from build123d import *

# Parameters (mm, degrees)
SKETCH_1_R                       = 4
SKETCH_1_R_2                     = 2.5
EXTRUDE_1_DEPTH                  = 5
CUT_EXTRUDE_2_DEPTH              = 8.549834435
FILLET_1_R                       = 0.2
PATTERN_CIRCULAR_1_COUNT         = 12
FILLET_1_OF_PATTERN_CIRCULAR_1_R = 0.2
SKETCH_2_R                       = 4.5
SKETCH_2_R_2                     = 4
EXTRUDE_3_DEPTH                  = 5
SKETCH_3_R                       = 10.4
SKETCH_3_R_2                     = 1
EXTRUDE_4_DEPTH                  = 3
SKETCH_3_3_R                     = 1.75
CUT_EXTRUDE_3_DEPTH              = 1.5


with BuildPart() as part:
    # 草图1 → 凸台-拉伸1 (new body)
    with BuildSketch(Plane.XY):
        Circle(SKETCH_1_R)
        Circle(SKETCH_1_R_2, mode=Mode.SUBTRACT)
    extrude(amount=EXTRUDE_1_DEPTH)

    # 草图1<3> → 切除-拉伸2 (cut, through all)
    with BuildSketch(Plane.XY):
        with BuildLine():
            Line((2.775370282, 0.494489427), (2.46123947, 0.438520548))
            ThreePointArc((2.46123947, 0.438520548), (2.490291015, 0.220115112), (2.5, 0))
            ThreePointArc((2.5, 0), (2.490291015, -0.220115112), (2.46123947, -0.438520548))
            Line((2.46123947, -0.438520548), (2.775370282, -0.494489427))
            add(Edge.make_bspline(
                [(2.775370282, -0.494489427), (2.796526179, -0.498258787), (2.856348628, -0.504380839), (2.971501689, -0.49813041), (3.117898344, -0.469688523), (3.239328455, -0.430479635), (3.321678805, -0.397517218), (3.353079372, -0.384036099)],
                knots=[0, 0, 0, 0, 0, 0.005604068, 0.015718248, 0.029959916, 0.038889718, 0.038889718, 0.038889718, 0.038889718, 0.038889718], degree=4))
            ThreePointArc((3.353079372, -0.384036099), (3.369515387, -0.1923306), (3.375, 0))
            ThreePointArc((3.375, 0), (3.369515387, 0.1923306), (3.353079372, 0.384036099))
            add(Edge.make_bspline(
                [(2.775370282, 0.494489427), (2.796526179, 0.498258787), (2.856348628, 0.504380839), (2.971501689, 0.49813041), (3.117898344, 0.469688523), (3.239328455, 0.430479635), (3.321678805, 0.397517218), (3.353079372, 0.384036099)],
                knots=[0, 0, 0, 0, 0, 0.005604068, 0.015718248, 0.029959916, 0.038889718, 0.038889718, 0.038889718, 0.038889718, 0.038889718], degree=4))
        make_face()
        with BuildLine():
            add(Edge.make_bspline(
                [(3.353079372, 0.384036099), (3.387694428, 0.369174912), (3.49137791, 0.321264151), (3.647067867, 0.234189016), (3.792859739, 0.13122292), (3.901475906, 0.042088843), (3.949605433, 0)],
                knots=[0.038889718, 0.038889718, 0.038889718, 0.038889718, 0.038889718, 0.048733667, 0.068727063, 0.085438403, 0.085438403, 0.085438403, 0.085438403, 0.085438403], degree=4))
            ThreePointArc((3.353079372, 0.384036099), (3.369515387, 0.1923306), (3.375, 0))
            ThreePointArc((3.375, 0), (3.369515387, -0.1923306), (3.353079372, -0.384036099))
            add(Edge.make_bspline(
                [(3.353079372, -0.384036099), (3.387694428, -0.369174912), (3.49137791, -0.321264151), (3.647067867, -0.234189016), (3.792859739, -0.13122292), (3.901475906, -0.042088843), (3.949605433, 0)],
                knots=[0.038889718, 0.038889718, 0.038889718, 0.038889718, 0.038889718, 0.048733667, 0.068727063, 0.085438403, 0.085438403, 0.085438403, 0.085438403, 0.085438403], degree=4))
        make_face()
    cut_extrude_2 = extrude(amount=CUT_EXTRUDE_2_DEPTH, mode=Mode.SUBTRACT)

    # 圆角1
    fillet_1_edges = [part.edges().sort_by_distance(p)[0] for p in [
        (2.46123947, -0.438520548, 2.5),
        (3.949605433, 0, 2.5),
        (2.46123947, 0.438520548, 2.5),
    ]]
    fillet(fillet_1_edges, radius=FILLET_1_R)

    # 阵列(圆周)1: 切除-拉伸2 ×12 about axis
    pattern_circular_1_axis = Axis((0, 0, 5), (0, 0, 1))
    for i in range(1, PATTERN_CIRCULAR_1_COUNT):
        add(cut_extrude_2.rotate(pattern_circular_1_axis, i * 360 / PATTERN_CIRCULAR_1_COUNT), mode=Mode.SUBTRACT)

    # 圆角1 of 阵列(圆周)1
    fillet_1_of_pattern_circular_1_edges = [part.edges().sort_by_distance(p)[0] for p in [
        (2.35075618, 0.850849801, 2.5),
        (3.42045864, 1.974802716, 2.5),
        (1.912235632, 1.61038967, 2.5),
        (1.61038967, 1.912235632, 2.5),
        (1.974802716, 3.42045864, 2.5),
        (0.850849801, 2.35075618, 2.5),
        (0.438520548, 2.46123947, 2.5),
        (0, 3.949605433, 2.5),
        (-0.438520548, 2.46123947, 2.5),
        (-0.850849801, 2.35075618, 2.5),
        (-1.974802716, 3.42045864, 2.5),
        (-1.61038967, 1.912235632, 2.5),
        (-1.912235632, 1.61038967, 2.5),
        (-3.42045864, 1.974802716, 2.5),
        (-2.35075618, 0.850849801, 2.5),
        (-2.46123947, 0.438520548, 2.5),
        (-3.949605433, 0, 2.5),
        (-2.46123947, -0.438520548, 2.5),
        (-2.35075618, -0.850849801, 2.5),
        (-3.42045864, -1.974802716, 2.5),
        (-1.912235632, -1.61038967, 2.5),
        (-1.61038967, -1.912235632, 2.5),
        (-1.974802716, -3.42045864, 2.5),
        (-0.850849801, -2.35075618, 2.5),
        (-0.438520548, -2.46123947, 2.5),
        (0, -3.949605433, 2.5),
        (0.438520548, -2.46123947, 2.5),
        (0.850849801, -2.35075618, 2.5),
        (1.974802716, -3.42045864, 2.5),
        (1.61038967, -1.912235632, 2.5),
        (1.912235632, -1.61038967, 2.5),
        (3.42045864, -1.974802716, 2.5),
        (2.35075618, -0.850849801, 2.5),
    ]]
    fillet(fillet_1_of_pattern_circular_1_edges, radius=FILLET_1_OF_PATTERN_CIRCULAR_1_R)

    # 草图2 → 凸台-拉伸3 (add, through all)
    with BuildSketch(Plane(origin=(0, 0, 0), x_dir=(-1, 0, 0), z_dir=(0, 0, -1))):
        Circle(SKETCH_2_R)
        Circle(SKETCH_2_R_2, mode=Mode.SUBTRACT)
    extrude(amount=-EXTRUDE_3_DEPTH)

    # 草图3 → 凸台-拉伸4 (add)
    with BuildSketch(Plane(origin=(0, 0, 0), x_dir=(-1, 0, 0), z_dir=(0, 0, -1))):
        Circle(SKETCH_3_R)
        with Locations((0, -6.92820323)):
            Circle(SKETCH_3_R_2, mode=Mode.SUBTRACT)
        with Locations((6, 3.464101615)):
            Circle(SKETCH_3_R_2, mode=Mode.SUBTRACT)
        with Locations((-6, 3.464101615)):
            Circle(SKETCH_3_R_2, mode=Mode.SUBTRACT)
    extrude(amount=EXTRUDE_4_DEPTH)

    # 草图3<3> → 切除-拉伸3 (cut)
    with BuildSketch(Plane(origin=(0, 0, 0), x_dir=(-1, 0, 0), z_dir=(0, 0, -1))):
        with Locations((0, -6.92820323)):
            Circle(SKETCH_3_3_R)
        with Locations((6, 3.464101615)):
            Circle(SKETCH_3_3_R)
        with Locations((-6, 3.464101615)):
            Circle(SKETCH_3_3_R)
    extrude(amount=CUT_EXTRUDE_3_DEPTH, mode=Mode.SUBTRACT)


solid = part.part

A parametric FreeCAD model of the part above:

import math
import FreeCAD as App
import Part
import Sketcher


def edges_at(feature, points):
    """Names of the edges that pass closest to the given points."""
    edges = feature.Shape.Edges
    near = lambda p: min(range(len(edges)), key=lambda i: edges[i].distToShape(Part.Vertex(*p))[0])
    return sorted({f"Edge{near(p) + 1}" for p in points})

doc = App.newDocument("Part")
body = doc.addObject("PartDesign::Body", "Body")

# Sketch on XY plane
sketch1 = doc.addObject("Sketcher::SketchObject", "Sketch")
body.addObject(sketch1)
sketch1.AttachmentSupport = (doc.XY_Plane, [""])
sketch1.MapMode = "FlatFace"
sketch1.addGeometry(Part.Circle(App.Vector(0, 0, 0), App.Vector(0, 0, 1), 4), False)
sketch1.addGeometry(Part.Circle(App.Vector(0, 0, 0), App.Vector(0, 0, 1), 2.5), False)
sketch1.addConstraint(Sketcher.Constraint("Coincident", 0, 3, -1, 1))
sketch1.addConstraint(Sketcher.Constraint("Coincident", 1, 3, -1, 1))
sketch1.addConstraint(Sketcher.Constraint("Diameter", 0, 8.0))
sketch1.addConstraint(Sketcher.Constraint("Diameter", 1, 5.0))
pad1 = doc.addObject("PartDesign::Pad", "Pad")
body.addObject(pad1)
pad1.Profile = sketch1
pad1.Length = 5

# Sketch on XY plane
sketch2 = doc.addObject("Sketcher::SketchObject", "Sketch001")
body.addObject(sketch2)
sketch2.AttachmentSupport = (doc.XY_Plane, [""])
sketch2.MapMode = "FlatFace"
sketch2.addGeometry(Part.LineSegment(App.Vector(2.77537, 0.494489, 0), App.Vector(2.461239, 0.438521, 0)), False)
sketch2.addGeometry(Part.ArcOfCircle(Part.Circle(App.Vector(0, 0, 0), App.Vector(0, 0, 1), 2.5), math.radians(0), math.radians(10.102415)), False)
sketch2.addGeometry(Part.ArcOfCircle(Part.Circle(App.Vector(0, 0, 0), App.Vector(0, 0, 1), 2.5), math.radians(-10.102415), math.radians(0)), False)
sketch2.addGeometry(Part.LineSegment(App.Vector(2.461239, -0.438521, 0), App.Vector(2.77537, -0.494489, 0)), False)
sketch2.addGeometry(Part.BSplineCurve([App.Vector(2.77537, -0.494489, 0), App.Vector(2.796526, -0.498259, 0), App.Vector(2.856349, -0.504381, 0), App.Vector(2.971502, -0.49813, 0), App.Vector(3.117898, -0.469689, 0), App.Vector(3.239328, -0.43048, 0), App.Vector(3.321679, -0.397517, 0), App.Vector(3.353079, -0.384036, 0)], [5, 1, 1, 1, 5], [0, 0.005604068, 0.015718248, 0.029959916, 0.038889718], False, 4, [1, 1, 1, 1, 1, 1, 1, 1], False), False)
sketch2.addGeometry(Part.BSplineCurve([App.Vector(3.353079, -0.384036, 0), App.Vector(3.387694, -0.369175, 0), App.Vector(3.491378, -0.321264, 0), App.Vector(3.647068, -0.234189, 0), App.Vector(3.79286, -0.131223, 0), App.Vector(3.901476, -0.042089, 0), App.Vector(3.949605, 0, 0)], [5, 1, 1, 5], [0.038889718, 0.048733667, 0.068727063, 0.085438403], False, 4, [1, 1, 1, 1, 1, 1, 1], False), False)
sketch2.addGeometry(Part.BSplineCurve([App.Vector(3.353079, 0.384036, 0), App.Vector(3.387694, 0.369175, 0), App.Vector(3.491378, 0.321264, 0), App.Vector(3.647068, 0.234189, 0), App.Vector(3.79286, 0.131223, 0), App.Vector(3.901476, 0.042089, 0), App.Vector(3.949605, 0, 0)], [5, 1, 1, 5], [0.038889718, 0.048733667, 0.068727063, 0.085438403], False, 4, [1, 1, 1, 1, 1, 1, 1], False), False)
sketch2.addGeometry(Part.BSplineCurve([App.Vector(2.77537, 0.494489, 0), App.Vector(2.796526, 0.498259, 0), App.Vector(2.856349, 0.504381, 0), App.Vector(2.971502, 0.49813, 0), App.Vector(3.117898, 0.469689, 0), App.Vector(3.239328, 0.43048, 0), App.Vector(3.321679, 0.397517, 0), App.Vector(3.353079, 0.384036, 0)], [5, 1, 1, 1, 5], [0, 0.005604068, 0.015718248, 0.029959916, 0.038889718], False, 4, [1, 1, 1, 1, 1, 1, 1, 1], False), False)
sketch2.addConstraint(Sketcher.Constraint("Block", 4))
sketch2.addConstraint(Sketcher.Constraint("Block", 5))
sketch2.addConstraint(Sketcher.Constraint("Block", 6))
sketch2.addConstraint(Sketcher.Constraint("Block", 7))
sketch2.addConstraint(Sketcher.Constraint("Coincident", 0, 2, 1, 2))
sketch2.addConstraint(Sketcher.Constraint("Tangent", 1, 1, 2, 2))
sketch2.addConstraint(Sketcher.Constraint("Coincident", 2, 1, 3, 1))
sketch2.addConstraint(Sketcher.Constraint("Coincident", 3, 2, 4, 1))
sketch2.addConstraint(Sketcher.Constraint("Coincident", 7, 1, 0, 1))
sketch2.addConstraint(Sketcher.Constraint("Coincident", 1, 3, -1, 1))
sketch2.addConstraint(Sketcher.Constraint("Equal", 1, 2))
sketch2.addConstraint(Sketcher.Constraint("PointOnObject", 1, 1, -1))
sketch2.addConstraint(Sketcher.Constraint("Vertical", 0, 2, 2, 1))
sketch2.addConstraint(Sketcher.Constraint("Radius", 1, 2.5))
sketch2.addConstraint(Sketcher.Constraint("DistanceX", -1, 1, 0, 2, 2.461239))
pocket1 = doc.addObject("PartDesign::Pocket", "Pocket")
body.addObject(pocket1)
pocket1.Profile = sketch2
pocket1.Type = "ThroughAll"
pocket1.Reversed = True
doc.recompute()

fillet = doc.addObject("PartDesign::Fillet", "Fillet")
body.addObject(fillet)
fillet.Base = (pocket1, edges_at(pocket1, [(2.461, -0.439, 2.5), (3.95, 0, 2.5), (2.461, 0.439, 2.5)]))
fillet.Radius = 0.2
doc.recompute()

polarpattern = doc.addObject("PartDesign::PolarPattern", "PolarPattern")
body.addObject(polarpattern)
polarpattern.Originals = [pocket1]
polarpattern.Axis = (doc.Z_Axis, [""])
polarpattern.Angle = 360
polarpattern.Occurrences = 12
body.Tip = polarpattern
doc.recompute()

fillet2 = doc.addObject("PartDesign::Fillet", "Fillet001")
body.addObject(fillet2)
fillet2.Base = (polarpattern, edges_at(polarpattern, [
    (2.351, 0.851, 2.5),
    (3.42, 1.975, 2.5),
    (1.912, 1.61, 2.5),
    (1.61, 1.912, 2.5),
    (1.975, 3.42, 2.5),
    (0.851, 2.351, 2.5),
    (0.439, 2.461, 2.5),
    (0, 3.95, 2.5),
    (-0.439, 2.461, 2.5),
    (-0.851, 2.351, 2.5),
    (-1.975, 3.42, 2.5),
    (-1.61, 1.912, 2.5),
    (-1.912, 1.61, 2.5),
    (-3.42, 1.975, 2.5),
    (-2.351, 0.851, 2.5),
    (-2.461, 0.439, 2.5),
    (-3.95, 0, 2.5),
    (-2.461, -0.439, 2.5),
    (-2.351, -0.851, 2.5),
    (-3.42, -1.975, 2.5),
    (-1.912, -1.61, 2.5),
    (-1.61, -1.912, 2.5),
    (-1.975, -3.42, 2.5),
    (-0.851, -2.351, 2.5),
    (-0.439, -2.461, 2.5),
    (0, -3.95, 2.5),
    (0.439, -2.461, 2.5),
    (0.851, -2.351, 2.5),
    (1.975, -3.42, 2.5),
    (1.61, -1.912, 2.5),
    (1.912, -1.61, 2.5),
    (3.42, -1.975, 2.5),
    (2.351, -0.851, 2.5),
]))
fillet2.Radius = 0.2

# Sketch on XY plane
sketch3 = doc.addObject("Sketcher::SketchObject", "Sketch002")
body.addObject(sketch3)
sketch3.AttachmentSupport = (doc.XY_Plane, [""])
sketch3.MapMode = "FlatFace"
sketch3.addGeometry(Part.Circle(App.Vector(0, 0, 0), App.Vector(0, 0, 1), 4.5), False)
sketch3.addGeometry(Part.Circle(App.Vector(0, 0, 0), App.Vector(0, 0, 1), 4), False)
sketch3.addConstraint(Sketcher.Constraint("Coincident", 0, 3, -1, 1))
sketch3.addConstraint(Sketcher.Constraint("Coincident", 1, 3, -1, 1))
sketch3.addConstraint(Sketcher.Constraint("Diameter", 0, 9.0))
sketch3.addConstraint(Sketcher.Constraint("Diameter", 1, 8.0))
pad2 = doc.addObject("PartDesign::Pad", "Pad001")
body.addObject(pad2)
pad2.Profile = sketch3
pad2.Length = 5

# Sketch on XY plane
sketch4 = doc.addObject("Sketcher::SketchObject", "Sketch003")
body.addObject(sketch4)
sketch4.AttachmentSupport = (doc.XY_Plane, [""])
sketch4.MapMode = "FlatFace"
sketch4.addGeometry(Part.Circle(App.Vector(0, 0, 0), App.Vector(0, 0, 1), 10.4), False)
sketch4.addGeometry(Part.Circle(App.Vector(0, -6.928203, 0), App.Vector(0, 0, 1), 1), False)
sketch4.addGeometry(Part.Circle(App.Vector(6, 3.464102, 0), App.Vector(0, 0, 1), 1), False)
sketch4.addGeometry(Part.Circle(App.Vector(-6, 3.464102, 0), App.Vector(0, 0, 1), 1), False)
sketch4.addConstraint(Sketcher.Constraint("Coincident", 0, 3, -1, 1))
sketch4.addConstraint(Sketcher.Constraint("Equal", 1, 2))
sketch4.addConstraint(Sketcher.Constraint("Equal", 2, 3))
sketch4.addConstraint(Sketcher.Constraint("Symmetric", 2, 3, 3, 3, -2))
sketch4.addConstraint(Sketcher.Constraint("PointOnObject", 1, 3, -2))
sketch4.addConstraint(Sketcher.Constraint("Diameter", 1, 2.0))
sketch4.addConstraint(Sketcher.Constraint("Diameter", 0, 20.8))
sketch4.addConstraint(Sketcher.Constraint("DistanceX", -1, 1, 2, 3, 6.0))
sketch4.addConstraint(Sketcher.Constraint("DistanceY", -1, 1, 2, 3, 3.464102))
sketch4.addConstraint(Sketcher.Constraint("DistanceY", 1, 3, -1, 1, 6.928203))
pad3 = doc.addObject("PartDesign::Pad", "Pad002")
body.addObject(pad3)
pad3.Profile = sketch4
pad3.Length = 3
pad3.Reversed = True

# Sketch on XY plane
sketch5 = doc.addObject("Sketcher::SketchObject", "Sketch004")
body.addObject(sketch5)
sketch5.AttachmentSupport = (doc.XY_Plane, [""])
sketch5.MapMode = "FlatFace"
sketch5.addGeometry(Part.Circle(App.Vector(0, -6.928203, 0), App.Vector(0, 0, 1), 1.75), False)
sketch5.addGeometry(Part.Circle(App.Vector(-6, 3.464102, 0), App.Vector(0, 0, 1), 1.75), False)
sketch5.addGeometry(Part.Circle(App.Vector(6, 3.464102, 0), App.Vector(0, 0, 1), 1.75), False)
sketch5.addConstraint(Sketcher.Constraint("Equal", 0, 1))
sketch5.addConstraint(Sketcher.Constraint("Equal", 1, 2))
sketch5.addConstraint(Sketcher.Constraint("Symmetric", 1, 3, 2, 3, -2))
sketch5.addConstraint(Sketcher.Constraint("PointOnObject", 0, 3, -2))
sketch5.addConstraint(Sketcher.Constraint("Diameter", 0, 3.5))
sketch5.addConstraint(Sketcher.Constraint("DistanceX", 1, 3, -1, 1, 6.0))
sketch5.addConstraint(Sketcher.Constraint("DistanceY", -1, 1, 1, 3, 3.464102))
sketch5.addConstraint(Sketcher.Constraint("DistanceY", 0, 3, -1, 1, 6.928203))
pocket2 = doc.addObject("PartDesign::Pocket", "Pocket001")
body.addObject(pocket2)
pocket2.Profile = sketch5
pocket2.Length = 1.5

doc.recompute()
